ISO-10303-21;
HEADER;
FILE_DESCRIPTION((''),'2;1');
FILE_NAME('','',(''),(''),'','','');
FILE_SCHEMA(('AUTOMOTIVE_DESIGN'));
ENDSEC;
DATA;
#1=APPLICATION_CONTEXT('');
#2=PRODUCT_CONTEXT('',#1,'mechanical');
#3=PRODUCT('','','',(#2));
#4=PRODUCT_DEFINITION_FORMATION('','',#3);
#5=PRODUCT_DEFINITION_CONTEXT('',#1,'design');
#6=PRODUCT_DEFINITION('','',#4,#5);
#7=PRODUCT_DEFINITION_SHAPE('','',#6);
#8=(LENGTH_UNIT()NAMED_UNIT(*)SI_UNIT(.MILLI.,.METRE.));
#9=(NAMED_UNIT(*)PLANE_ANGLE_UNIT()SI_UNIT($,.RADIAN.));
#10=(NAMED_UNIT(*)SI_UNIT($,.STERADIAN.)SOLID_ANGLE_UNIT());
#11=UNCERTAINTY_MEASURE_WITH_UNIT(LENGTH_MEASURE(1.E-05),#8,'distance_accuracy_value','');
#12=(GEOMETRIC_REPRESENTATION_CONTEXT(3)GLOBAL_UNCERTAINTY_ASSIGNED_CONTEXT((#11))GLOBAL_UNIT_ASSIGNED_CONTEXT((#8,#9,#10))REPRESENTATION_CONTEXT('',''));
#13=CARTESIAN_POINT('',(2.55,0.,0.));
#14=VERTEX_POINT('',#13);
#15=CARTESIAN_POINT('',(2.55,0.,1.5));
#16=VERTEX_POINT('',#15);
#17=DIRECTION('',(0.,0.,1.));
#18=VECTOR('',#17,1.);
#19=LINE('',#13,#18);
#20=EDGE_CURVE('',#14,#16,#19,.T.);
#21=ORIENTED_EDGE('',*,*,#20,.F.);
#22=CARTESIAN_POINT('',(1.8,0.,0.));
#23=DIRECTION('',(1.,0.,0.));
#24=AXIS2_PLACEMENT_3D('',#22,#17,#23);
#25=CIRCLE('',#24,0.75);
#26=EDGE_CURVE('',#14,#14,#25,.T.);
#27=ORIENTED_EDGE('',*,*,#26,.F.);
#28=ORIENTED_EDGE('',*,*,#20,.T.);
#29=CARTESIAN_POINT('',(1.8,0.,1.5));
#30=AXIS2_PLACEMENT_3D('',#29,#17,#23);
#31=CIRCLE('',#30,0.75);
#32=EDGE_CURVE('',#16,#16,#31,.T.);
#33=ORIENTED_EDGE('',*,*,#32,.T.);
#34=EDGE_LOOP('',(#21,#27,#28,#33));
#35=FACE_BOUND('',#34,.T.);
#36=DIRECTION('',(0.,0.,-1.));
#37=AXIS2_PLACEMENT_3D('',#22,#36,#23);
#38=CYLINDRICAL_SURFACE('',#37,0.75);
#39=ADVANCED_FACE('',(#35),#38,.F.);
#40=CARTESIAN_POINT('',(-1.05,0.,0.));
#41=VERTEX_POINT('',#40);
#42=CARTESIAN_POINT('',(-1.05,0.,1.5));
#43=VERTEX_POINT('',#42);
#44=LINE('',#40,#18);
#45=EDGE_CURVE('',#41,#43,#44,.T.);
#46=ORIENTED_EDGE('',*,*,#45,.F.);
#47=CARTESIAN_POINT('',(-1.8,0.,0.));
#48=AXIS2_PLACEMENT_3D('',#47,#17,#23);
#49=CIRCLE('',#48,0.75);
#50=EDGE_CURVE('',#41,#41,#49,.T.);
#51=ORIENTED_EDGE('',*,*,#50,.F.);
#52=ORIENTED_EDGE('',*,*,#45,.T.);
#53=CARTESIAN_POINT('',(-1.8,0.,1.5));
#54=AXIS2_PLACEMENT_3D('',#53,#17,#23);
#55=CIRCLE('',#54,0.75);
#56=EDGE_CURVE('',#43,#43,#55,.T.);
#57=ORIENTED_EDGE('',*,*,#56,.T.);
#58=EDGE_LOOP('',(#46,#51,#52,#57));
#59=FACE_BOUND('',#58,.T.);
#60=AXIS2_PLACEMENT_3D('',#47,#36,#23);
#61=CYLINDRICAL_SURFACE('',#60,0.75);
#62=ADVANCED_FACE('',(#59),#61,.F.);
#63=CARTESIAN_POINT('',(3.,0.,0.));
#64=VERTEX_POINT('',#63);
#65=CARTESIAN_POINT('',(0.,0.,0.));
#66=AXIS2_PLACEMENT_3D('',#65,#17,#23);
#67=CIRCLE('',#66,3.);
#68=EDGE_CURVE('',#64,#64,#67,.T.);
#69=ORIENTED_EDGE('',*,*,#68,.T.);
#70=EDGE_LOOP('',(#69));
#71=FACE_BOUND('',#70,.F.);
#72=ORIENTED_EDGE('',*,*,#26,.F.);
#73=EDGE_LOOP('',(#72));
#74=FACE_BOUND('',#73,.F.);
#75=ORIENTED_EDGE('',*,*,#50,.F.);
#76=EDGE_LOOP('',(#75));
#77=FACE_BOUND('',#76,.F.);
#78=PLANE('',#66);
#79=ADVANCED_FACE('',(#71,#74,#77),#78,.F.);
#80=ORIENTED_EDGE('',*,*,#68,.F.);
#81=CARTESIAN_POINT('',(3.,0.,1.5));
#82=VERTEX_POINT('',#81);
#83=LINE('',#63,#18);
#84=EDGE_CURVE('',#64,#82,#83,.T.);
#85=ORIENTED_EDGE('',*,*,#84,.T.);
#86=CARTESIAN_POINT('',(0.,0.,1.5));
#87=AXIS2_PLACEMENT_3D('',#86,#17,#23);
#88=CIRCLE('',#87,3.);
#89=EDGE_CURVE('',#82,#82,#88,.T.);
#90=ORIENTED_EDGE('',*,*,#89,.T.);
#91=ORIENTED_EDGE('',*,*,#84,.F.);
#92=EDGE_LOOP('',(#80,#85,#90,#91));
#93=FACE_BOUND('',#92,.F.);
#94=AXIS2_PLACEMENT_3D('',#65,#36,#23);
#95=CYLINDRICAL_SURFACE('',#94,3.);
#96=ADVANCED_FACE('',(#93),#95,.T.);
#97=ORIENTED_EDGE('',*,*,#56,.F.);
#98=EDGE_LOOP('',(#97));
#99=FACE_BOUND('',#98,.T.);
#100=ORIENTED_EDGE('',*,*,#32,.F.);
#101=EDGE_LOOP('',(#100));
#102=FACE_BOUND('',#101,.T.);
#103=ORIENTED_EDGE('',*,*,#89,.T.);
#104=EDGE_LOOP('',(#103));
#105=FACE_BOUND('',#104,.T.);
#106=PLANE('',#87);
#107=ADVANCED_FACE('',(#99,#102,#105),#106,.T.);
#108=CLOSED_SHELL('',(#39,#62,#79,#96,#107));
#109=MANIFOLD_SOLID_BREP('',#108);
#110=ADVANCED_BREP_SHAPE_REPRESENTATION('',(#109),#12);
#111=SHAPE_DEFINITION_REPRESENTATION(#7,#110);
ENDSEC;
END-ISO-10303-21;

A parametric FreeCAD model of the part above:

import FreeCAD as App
import Part
import Sketcher

V = App.Vector
Q = App.Units.Quantity

doc = App.newDocument("Part")
body = doc.addObject("PartDesign::Body", "Body")

# Sketch on XY plane
sketch1 = doc.addObject("Sketcher::SketchObject", "Sketch")
body.addObject(sketch1)
sketch1.AttachmentSupport = (doc.XY_Plane, [""])
sketch1.MapMode = "FlatFace"
sketch1.addGeometry([
    Part.Circle(V(0, 0, 0), V(0, 0, 1), 3),
    Part.Circle(V(-1.8, 0, 0), V(0, 0, 1), 0.8),
    Part.Circle(V(1.8, 0, 0), V(0, 0, 1), 0.8),
], False)
sketch1.addConstraint([
    Sketcher.Constraint("Coincident", 0, 3, -1, 1),
    Sketcher.Constraint("Equal", 1, 2),
    Sketcher.Constraint("Symmetric", 1, 3, 2, 3, -1, 1),
    Sketcher.Constraint("PointOnObject", 1, 3, -1),
    Sketcher.Constraint("Diameter", 0, Q("6 mm")),
    Sketcher.Constraint("Diameter", 1, Q("1.5 mm")),
    Sketcher.Constraint("DistanceX", 1, 3, -1, 1, Q("1.8 mm")),
])
pad1 = doc.addObject("PartDesign::Pad", "Pad")
body.addObject(pad1)
pad1.Profile = sketch1
pad1.Length = 1.5

doc.recompute()
